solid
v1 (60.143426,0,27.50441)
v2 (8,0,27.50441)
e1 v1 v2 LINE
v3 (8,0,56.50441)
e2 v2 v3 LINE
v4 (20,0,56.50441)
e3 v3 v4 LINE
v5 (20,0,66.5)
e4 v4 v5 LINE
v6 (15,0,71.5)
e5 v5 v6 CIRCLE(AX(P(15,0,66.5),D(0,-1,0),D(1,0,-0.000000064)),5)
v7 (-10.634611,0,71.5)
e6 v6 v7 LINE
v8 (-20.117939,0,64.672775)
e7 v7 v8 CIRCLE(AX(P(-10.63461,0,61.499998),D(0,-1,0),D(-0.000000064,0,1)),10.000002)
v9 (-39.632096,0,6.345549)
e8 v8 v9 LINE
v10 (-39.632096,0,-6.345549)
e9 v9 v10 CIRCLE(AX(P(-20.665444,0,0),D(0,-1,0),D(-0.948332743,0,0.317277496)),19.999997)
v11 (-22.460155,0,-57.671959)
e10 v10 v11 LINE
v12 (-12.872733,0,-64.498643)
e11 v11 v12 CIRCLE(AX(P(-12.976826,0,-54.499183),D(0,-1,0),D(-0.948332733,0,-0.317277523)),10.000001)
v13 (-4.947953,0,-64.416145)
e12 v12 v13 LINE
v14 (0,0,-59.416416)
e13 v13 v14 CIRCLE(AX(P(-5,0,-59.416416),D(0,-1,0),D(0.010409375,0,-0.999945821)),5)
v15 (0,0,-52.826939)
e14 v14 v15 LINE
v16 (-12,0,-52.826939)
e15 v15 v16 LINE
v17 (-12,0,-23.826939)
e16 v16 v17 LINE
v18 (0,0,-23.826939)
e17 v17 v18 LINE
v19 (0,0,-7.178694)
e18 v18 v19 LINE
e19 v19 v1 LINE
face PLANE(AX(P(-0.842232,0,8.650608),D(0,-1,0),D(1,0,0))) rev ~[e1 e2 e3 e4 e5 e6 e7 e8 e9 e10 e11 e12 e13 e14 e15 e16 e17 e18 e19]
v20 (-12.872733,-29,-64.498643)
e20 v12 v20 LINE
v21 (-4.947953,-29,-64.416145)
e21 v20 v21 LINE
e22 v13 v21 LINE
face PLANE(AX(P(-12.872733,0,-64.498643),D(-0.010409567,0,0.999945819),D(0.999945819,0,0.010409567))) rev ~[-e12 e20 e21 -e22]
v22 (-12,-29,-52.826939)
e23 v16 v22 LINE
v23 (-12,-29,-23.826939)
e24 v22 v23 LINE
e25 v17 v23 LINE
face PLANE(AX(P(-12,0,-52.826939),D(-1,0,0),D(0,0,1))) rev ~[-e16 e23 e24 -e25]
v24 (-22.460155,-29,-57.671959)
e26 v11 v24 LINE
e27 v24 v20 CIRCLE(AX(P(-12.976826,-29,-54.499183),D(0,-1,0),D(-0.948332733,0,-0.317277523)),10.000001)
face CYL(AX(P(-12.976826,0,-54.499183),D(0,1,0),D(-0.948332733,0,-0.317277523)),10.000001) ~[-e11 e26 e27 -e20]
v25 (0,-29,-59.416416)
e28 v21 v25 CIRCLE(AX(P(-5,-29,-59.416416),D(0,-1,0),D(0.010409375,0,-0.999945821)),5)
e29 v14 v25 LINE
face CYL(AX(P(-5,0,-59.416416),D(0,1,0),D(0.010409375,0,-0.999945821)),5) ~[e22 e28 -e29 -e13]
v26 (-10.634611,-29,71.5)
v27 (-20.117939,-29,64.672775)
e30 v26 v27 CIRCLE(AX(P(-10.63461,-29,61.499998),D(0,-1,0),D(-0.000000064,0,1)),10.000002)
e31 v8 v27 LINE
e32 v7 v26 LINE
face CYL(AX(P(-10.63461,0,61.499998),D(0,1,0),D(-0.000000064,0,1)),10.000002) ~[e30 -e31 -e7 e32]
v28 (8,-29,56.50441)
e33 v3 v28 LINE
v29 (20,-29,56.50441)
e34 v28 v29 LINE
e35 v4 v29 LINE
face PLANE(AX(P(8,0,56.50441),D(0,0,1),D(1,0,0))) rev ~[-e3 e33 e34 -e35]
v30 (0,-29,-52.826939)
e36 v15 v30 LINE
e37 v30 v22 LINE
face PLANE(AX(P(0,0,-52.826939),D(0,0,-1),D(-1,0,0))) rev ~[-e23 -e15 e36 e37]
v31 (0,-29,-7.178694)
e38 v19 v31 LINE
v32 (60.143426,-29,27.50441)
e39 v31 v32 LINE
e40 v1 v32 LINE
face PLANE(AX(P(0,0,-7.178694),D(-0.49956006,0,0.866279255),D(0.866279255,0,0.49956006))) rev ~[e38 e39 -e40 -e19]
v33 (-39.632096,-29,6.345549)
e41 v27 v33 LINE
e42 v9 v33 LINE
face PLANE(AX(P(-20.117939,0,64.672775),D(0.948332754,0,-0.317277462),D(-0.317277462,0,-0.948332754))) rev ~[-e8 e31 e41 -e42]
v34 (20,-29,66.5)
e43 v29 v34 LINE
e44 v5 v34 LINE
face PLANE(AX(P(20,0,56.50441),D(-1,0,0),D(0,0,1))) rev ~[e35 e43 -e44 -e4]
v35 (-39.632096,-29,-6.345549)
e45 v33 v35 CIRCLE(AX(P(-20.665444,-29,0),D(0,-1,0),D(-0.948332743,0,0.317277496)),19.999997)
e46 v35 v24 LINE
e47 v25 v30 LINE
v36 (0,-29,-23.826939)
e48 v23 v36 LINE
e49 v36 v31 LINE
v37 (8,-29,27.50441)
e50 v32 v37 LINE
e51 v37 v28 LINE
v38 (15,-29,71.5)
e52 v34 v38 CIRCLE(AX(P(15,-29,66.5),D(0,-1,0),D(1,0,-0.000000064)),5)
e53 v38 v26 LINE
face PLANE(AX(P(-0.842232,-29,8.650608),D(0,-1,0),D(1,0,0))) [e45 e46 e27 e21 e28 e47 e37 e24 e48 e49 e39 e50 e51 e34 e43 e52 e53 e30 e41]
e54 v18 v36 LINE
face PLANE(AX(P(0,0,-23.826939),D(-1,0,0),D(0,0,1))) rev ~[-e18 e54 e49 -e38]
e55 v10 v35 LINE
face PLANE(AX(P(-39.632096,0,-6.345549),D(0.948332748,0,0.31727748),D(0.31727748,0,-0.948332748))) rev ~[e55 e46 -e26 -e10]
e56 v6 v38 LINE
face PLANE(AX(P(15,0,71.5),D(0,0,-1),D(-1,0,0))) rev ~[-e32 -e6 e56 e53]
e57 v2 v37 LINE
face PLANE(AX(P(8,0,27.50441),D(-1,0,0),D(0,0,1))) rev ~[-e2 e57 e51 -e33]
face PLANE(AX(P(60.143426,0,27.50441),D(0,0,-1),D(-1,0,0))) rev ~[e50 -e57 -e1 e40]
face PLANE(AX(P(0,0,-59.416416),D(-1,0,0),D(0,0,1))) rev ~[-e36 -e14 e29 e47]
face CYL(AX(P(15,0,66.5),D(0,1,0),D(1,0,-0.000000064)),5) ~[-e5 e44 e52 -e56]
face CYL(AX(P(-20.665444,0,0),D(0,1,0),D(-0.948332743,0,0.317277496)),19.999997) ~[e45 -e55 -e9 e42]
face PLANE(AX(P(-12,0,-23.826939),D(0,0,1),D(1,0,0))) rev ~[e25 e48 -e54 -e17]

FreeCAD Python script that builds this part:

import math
import FreeCAD as App
import Part
import Sketcher

V = App.Vector
Q = App.Units.Quantity

doc = App.newDocument("Part")
params = doc.addObject("Spreadsheet::Sheet", "Params")
for row, (alias, value) in enumerate([
    ("sketch1_radius", "5 mm"),
    ("sketch1_radius2", "10.000002 mm"),
    ("sketch1_width", "12 mm"),
    ("sketch1_height", "29 mm"),
    ("pad1_length", "29 mm"),
], start=1):
    params.set(f"A{row}", alias)
    params.set(f"B{row}", "=" + value)
    params.setAlias(f"B{row}", alias)

body = doc.addObject("PartDesign::Body", "Body")

# Sketch on XZ plane
sketch1 = doc.addObject("Sketcher::SketchObject", "Sketch")
body.addObject(sketch1)
sketch1.AttachmentSupport = (doc.XZ_Plane, [""])
sketch1.MapMode = "FlatFace"
sketch1.addGeometry(Part.ArcOfCircle(Part.Circle(V(15, 66.5, 0), V(0, 0, 1), 5), math.radians(-0.000004), math.radians(90.000004)), False)
sketch1.addGeometry(Part.LineSegment(V(15, 71.5, 0), V(-10.634611, 71.5, 0)), False)
sketch1.addGeometry(Part.ArcOfCircle(Part.Circle(V(-10.63461, 61.499998, 0), V(0, 0, 1), 10.000002), math.radians(90.000004), math.radians(161.501634)), False)
sketch1.addGeometry(Part.LineSegment(V(-20.117939, 64.672775, 0), V(-39.632096, 6.345549, 0)), False)
sketch1.addGeometry(Part.ArcOfCircle(Part.Circle(V(-20.665444, 0, 0), V(0, 0, 1), 19.999997), math.radians(161.501641), math.radians(198.498359)), False)
sketch1.addGeometry(Part.LineSegment(V(-39.632096, -6.345549, 0), V(-22.460155, -57.671959, 0)), False)
sketch1.addGeometry(Part.ArcOfCircle(Part.Circle(V(-12.976826, -54.499183, 0), V(0, 0, 1), 10.000001), math.radians(-161.501639), math.radians(-89.403579)), False)
sketch1.addGeometry(Part.LineSegment(V(-12.872733, -64.498643, 0), V(-4.947953, -64.416145, 0)), False)
sketch1.addGeometry(Part.ArcOfCircle(Part.Circle(V(-5, -59.416416, 0), V(0, 0, 1), 5), math.radians(-89.403576), math.radians(0)), False)
sketch1.addGeometry(Part.LineSegment(V(0, -59.416416, 0), V(0, -52.826939, 0)), False)
sketch1.addGeometry(Part.LineSegment(V(0, -52.826939, 0), V(-12, -52.826939, 0)), False)
sketch1.addGeometry(Part.LineSegment(V(-12, -52.826939, 0), V(-12, -23.826939, 0)), False)
sketch1.addGeometry(Part.LineSegment(V(-12, -23.826939, 0), V(0, -23.826939, 0)), False)
sketch1.addGeometry(Part.LineSegment(V(0, -23.826939, 0), V(0, -7.178694, 0)), False)
sketch1.addGeometry(Part.LineSegment(V(0, -7.178694, 0), V(60.143426, 27.50441, 0)), False)
sketch1.addGeometry(Part.LineSegment(V(60.143426, 27.50441, 0), V(8, 27.50441, 0)), False)
sketch1.addGeometry(Part.LineSegment(V(8, 27.50441, 0), V(8, 56.50441, 0)), False)
sketch1.addGeometry(Part.LineSegment(V(8, 56.50441, 0), V(20, 56.50441, 0)), False)
sketch1.addGeometry(Part.LineSegment(V(20, 56.50441, 0), V(20, 66.5, 0)), False)
sketch1.addConstraint(Sketcher.Constraint("Tangent", 0, 2, 1, 1))
sketch1.addConstraint(Sketcher.Constraint("Tangent", 1, 2, 2, 1))
sketch1.addConstraint(Sketcher.Constraint("Tangent", 2, 2, 3, 1))
sketch1.addConstraint(Sketcher.Constraint("Tangent", 3, 2, 4, 1))
sketch1.addConstraint(Sketcher.Constraint("Tangent", 4, 2, 5, 1))
sketch1.addConstraint(Sketcher.Constraint("Tangent", 5, 2, 6, 1))
sketch1.addConstraint(Sketcher.Constraint("Tangent", 6, 2, 7, 1))
sketch1.addConstraint(Sketcher.Constraint("Tangent", 7, 2, 8, 1))
sketch1.addConstraint(Sketcher.Constraint("Tangent", 8, 2, 9, 1))
sketch1.addConstraint(Sketcher.Constraint("Coincident", 9, 2, 10, 1))
sketch1.addConstraint(Sketcher.Constraint("Coincident", 10, 2, 11, 1))
sketch1.addConstraint(Sketcher.Constraint("Coincident", 11, 2, 12, 1))
sketch1.addConstraint(Sketcher.Constraint("Coincident", 12, 2, 13, 1))
sketch1.addConstraint(Sketcher.Constraint("Coincident", 13, 2, 14, 1))
sketch1.addConstraint(Sketcher.Constraint("Coincident", 14, 2, 15, 1))
sketch1.addConstraint(Sketcher.Constraint("Coincident", 15, 2, 16, 1))
sketch1.addConstraint(Sketcher.Constraint("Coincident", 16, 2, 17, 1))
sketch1.addConstraint(Sketcher.Constraint("Coincident", 17, 2, 18, 1))
sketch1.addConstraint(Sketcher.Constraint("Tangent", 18, 2, 0, 1))
sketch1.addConstraint(Sketcher.Constraint("Horizontal", 1))
sketch1.addConstraint(Sketcher.Constraint("Vertical", 9))
sketch1.addConstraint(Sketcher.Constraint("Horizontal", 10))
sketch1.addConstraint(Sketcher.Constraint("Vertical", 11))
sketch1.addConstraint(Sketcher.Constraint("Horizontal", 12))
sketch1.addConstraint(Sketcher.Constraint("Vertical", 13))
sketch1.addConstraint(Sketcher.Constraint("Horizontal", 15))
sketch1.addConstraint(Sketcher.Constraint("Vertical", 16))
sketch1.addConstraint(Sketcher.Constraint("Horizontal", 17))
sketch1.addConstraint(Sketcher.Constraint("Vertical", 18))
sketch1.addConstraint(Sketcher.Constraint("Equal", 2, 6))
sketch1.addConstraint(Sketcher.Constraint("Equal", 0, 8))
sketch1.addConstraint(Sketcher.Constraint("Symmetric", 3, 2, 4, 2, -1))
sketch1.addConstraint(Sketcher.Constraint("PointOnObject", 8, 2, -2))
sketch1.addConstraint(Sketcher.Constraint("PointOnObject", 12, 2, -2))
sketch1.addConstraint(Sketcher.Constraint("Equal", 12, 17))
sketch1.addConstraint(Sketcher.Constraint("Equal", 11, 16))
sketch1.addConstraint(Sketcher.Constraint("Radius", 0, Q("5 mm")))
sketch1.addConstraint(Sketcher.Constraint("Radius", 2, Q("10.000002 mm")))
sketch1.addConstraint(Sketcher.Constraint("DistanceX", 10, 2, 10, 1, Q("12 mm")))
sketch1.addConstraint(Sketcher.Constraint("DistanceY", 11, 1, 11, 2, Q("29 mm")))
sketch1.addConstraint(Sketcher.Constraint("DistanceX", -1, 1, 0, 3, Q("15 mm")))
sketch1.addConstraint(Sketcher.Constraint("DistanceY", -1, 1, 0, 3, Q("66.5 mm")))
sketch1.addConstraint(Sketcher.Constraint("Radius", 4, Q("19.999997 mm")))
sketch1.addConstraint(Sketcher.Constraint("DistanceX", 1, 2, 1, 1, Q("25.634611 mm")))
sketch1.addConstraint(Sketcher.Constraint("DistanceY", 18, 1, 18, 2, Q("9.99559 mm")))
sketch1.addConstraint(Sketcher.Constraint("DistanceY", 6, 2, 7, 2, Q("0.082498 mm")))
sketch1.addConstraint(Sketcher.Constraint("Distance", 3, Q("61.505021 mm")))
sketch1.addConstraint(Sketcher.Constraint("Distance", 7, Q("7.925209 mm")))
sketch1.addConstraint(Sketcher.Constraint("DistanceX", 15, 2, 15, 1, Q("52.143426 mm")))
sketch1.addConstraint(Sketcher.Constraint("DistanceY", 9, 1, 9, 2, Q("6.589477 mm")))
sketch1.addConstraint(Sketcher.Constraint("DistanceY", 13, 1, 13, 2, Q("16.648245 mm")))
sketch1.setExpression("Constraints[36]", "Params.sketch1_radius")
sketch1.setExpression("Constraints[37]", "Params.sketch1_radius2")
sketch1.setExpression("Constraints[38]", "Params.sketch1_width")
sketch1.setExpression("Constraints[39]", "Params.sketch1_height")
pad1 = doc.addObject("PartDesign::Pad", "Pad")
body.addObject(pad1)
pad1.Profile = sketch1
pad1.setExpression("Length", "Params.pad1_length")

doc.recompute()
